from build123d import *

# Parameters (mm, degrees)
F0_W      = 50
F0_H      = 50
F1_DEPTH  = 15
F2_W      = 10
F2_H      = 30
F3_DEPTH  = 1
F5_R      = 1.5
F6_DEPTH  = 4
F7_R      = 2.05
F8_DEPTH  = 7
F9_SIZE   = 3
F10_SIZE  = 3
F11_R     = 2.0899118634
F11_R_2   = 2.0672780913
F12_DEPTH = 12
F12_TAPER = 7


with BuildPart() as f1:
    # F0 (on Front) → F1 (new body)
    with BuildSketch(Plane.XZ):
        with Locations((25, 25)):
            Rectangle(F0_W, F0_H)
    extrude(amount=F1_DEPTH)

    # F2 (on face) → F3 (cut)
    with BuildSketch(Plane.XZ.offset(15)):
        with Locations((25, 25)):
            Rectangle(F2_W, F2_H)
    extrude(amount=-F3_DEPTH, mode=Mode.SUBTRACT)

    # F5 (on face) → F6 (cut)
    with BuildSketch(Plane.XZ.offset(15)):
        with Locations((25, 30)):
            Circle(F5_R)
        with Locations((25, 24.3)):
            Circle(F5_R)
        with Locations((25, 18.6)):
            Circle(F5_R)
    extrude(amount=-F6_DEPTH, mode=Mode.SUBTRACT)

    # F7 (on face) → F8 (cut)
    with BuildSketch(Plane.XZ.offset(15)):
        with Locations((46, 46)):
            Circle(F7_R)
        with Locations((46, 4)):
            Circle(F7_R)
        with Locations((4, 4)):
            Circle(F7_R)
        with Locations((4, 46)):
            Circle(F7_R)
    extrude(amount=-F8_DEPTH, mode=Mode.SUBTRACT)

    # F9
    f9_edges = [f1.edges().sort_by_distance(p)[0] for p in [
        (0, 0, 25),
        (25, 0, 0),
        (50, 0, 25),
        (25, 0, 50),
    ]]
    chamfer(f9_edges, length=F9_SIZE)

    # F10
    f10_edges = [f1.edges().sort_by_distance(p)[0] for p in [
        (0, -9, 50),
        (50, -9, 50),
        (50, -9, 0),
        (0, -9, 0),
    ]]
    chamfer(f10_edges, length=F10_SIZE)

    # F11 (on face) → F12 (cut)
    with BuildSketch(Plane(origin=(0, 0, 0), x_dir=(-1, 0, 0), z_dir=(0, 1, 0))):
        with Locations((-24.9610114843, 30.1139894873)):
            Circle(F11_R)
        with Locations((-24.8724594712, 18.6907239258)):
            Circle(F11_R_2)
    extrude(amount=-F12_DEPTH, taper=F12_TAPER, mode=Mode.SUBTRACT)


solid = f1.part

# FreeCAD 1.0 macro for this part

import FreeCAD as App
import Part
import Sketcher

V = App.Vector


def edges_at(feature, points):
    """Names of the edges that pass closest to the given points."""
    edges = feature.Shape.Edges
    near = lambda p: min(range(len(edges)), key=lambda i: edges[i].distToShape(Part.Vertex(*p))[0])
    return sorted({f"Edge{near(p) + 1}" for p in points})


def add_polygon(sketch, points):
    """Adds a closed chain of lines whose ends are joined by coincident constraints."""
    first, n = sketch.GeometryCount, len(points)
    for a, b in zip(points, points[1:] + points[:1]):
        sketch.addGeometry(Part.LineSegment(App.Vector(*a, 0), App.Vector(*b, 0)), False)
    for i in range(n):
        sketch.addConstraint(Sketcher.Constraint("Coincident", first + i, 2, first + (i + 1) % n, 1))

doc = App.newDocument("Part")
body = doc.addObject("PartDesign::Body", "Body")

# Sketch on XZ plane
sketch1 = body.newObject("Sketcher::SketchObject", "Sketch")
sketch1.AttachmentSupport = (doc.getObject("XZ_Plane"), [""])
sketch1.MapMode = "FlatFace"
add_polygon(sketch1, [(0, 50), (0, 0), (50, 0), (50, 50)])  # lines 0-3
sketch1.addConstraint(Sketcher.Constraint("Vertical", 0))
sketch1.addConstraint(Sketcher.Constraint("Horizontal", 1))
sketch1.addConstraint(Sketcher.Constraint("Vertical", 2))
sketch1.addConstraint(Sketcher.Constraint("Horizontal", 3))
sketch1.addConstraint(Sketcher.Constraint("Coincident", 0, 2, -1, 1))
sketch1.addConstraint(Sketcher.Constraint("Equal", 3, 0))
sketch1.addConstraint(Sketcher.Constraint("DistanceX", 1, 1, 1, 2, 50.0))
pad1 = body.newObject("PartDesign::Pad", "Pad")
pad1.Profile = sketch1
pad1.Length = 15

# Sketch on XZ plane
sketch2 = body.newObject("Sketcher::SketchObject", "Sketch001")
sketch2.AttachmentSupport = (doc.getObject("XZ_Plane"), [""])
sketch2.MapMode = "FlatFace"
sketch2.AttachmentOffset = App.Placement(V(0, 0, 15), App.Rotation())
add_polygon(sketch2, [(20, 40), (20, 10), (30, 10), (30, 40)])  # lines 0-3
sketch2.addConstraint(Sketcher.Constraint("Vertical", 0))
sketch2.addConstraint(Sketcher.Constraint("Horizontal", 1))
sketch2.addConstraint(Sketcher.Constraint("Vertical", 2))
sketch2.addConstraint(Sketcher.Constraint("Horizontal", 3))
sketch2.addConstraint(Sketcher.Constraint("DistanceX", 1, 1, 1, 2, 10.0))
sketch2.addConstraint(Sketcher.Constraint("DistanceY", 0, 2, 0, 1, 30.0))
sketch2.addConstraint(Sketcher.Constraint("DistanceX", -1, 1, 0, 2, 20.0))
sketch2.addConstraint(Sketcher.Constraint("DistanceY", -1, 1, 0, 2, 10.0))
pocket1 = body.newObject("PartDesign::Pocket", "Pocket")
pocket1.Profile = sketch2
pocket1.Length = 1

# Sketch on XZ plane
sketch3 = body.newObject("Sketcher::SketchObject", "Sketch002")
sketch3.AttachmentSupport = (doc.getObject("XZ_Plane"), [""])
sketch3.MapMode = "FlatFace"
sketch3.AttachmentOffset = App.Placement(V(0, 0, 15), App.Rotation())
sketch3.addGeometry(Part.Circle(V(25, 30, 0), V(0, 0, 1), 1.5), False)
sketch3.addGeometry(Part.Circle(V(25, 24.3, 0), V(0, 0, 1), 1.5), False)
sketch3.addGeometry(Part.Circle(V(25, 18.6, 0), V(0, 0, 1), 1.5), False)
sketch3.addConstraint(Sketcher.Constraint("Equal", 0, 1))
sketch3.addConstraint(Sketcher.Constraint("Equal", 1, 2))
sketch3.addConstraint(Sketcher.Constraint("Vertical", 0, 3, 1, 3))
sketch3.addConstraint(Sketcher.Constraint("Vertical", 1, 3, 2, 3))
sketch3.addConstraint(Sketcher.Constraint("Diameter", 0, 3.0))
sketch3.addConstraint(Sketcher.Constraint("DistanceX", -1, 1, 0, 3, 25.0))
sketch3.addConstraint(Sketcher.Constraint("DistanceY", -1, 1, 0, 3, 30.0))
sketch3.addConstraint(Sketcher.Constraint("DistanceY", -1, 1, 1, 3, 24.3))
sketch3.addConstraint(Sketcher.Constraint("DistanceY", -1, 1, 2, 3, 18.6))
pocket2 = body.newObject("PartDesign::Pocket", "Pocket001")
pocket2.Profile = sketch3
pocket2.Length = 4

# Sketch on XZ plane
sketch4 = body.newObject("Sketcher::SketchObject", "Sketch003")
sketch4.AttachmentSupport = (doc.getObject("XZ_Plane"), [""])
sketch4.MapMode = "FlatFace"
sketch4.AttachmentOffset = App.Placement(V(0, 0, 15), App.Rotation())
sketch4.addGeometry(Part.Circle(V(46, 46, 0), V(0, 0, 1), 2), False)
sketch4.addGeometry(Part.Circle(V(46, 4, 0), V(0, 0, 1), 2), False)
sketch4.addGeometry(Part.Circle(V(4, 4, 0), V(0, 0, 1), 2), False)
sketch4.addGeometry(Part.Circle(V(4, 46, 0), V(0, 0, 1), 2), False)
sketch4.addConstraint(Sketcher.Constraint("Equal", 0, 1))
sketch4.addConstraint(Sketcher.Constraint("Equal", 1, 2))
sketch4.addConstraint(Sketcher.Constraint("Equal", 2, 3))
sketch4.addConstraint(Sketcher.Constraint("Horizontal", 1, 3, 2, 3))
sketch4.addConstraint(Sketcher.Constraint("Horizontal", 0, 3, 3, 3))
sketch4.addConstraint(Sketcher.Constraint("Vertical", 0, 3, 1, 3))
sketch4.addConstraint(Sketcher.Constraint("Vertical", 2, 3, 3, 3))
sketch4.addConstraint(Sketcher.Constraint("Diameter", 0, 4.1))
sketch4.addConstraint(Sketcher.Constraint("DistanceX", -1, 1, 0, 3, 46.0))
sketch4.addConstraint(Sketcher.Constraint("DistanceY", -1, 1, 0, 3, 46.0))
sketch4.addConstraint(Sketcher.Constraint("DistanceY", -1, 1, 1, 3, 4.0))
sketch4.addConstraint(Sketcher.Constraint("DistanceX", -1, 1, 2, 3, 4.0))
pocket3 = body.newObject("PartDesign::Pocket", "Pocket002")
pocket3.Profile = sketch4
pocket3.Length = 7
doc.recompute()

chamfer = body.newObject("PartDesign::Chamfer", "Chamfer")
chamfer.Base = (pocket3, edges_at(pocket3, [
    (0, 0, 25),
    (25, 0, 0),
    (50, 0, 25),
    (25, 0, 50),
]))
chamfer.Size = 3
doc.recompute()

chamfer2 = body.newObject("PartDesign::Chamfer", "Chamfer001")
chamfer2.Base = (chamfer, edges_at(chamfer, [
    (0, -9, 50),
    (50, -9, 50),
    (50, -9, 0),
    (0, -9, 0),
]))
chamfer2.Size = 3

# Sketch on XZ plane
sketch5 = body.newObject("Sketcher::SketchObject", "Sketch004")
sketch5.AttachmentSupport = (doc.getObject("XZ_Plane"), [""])
sketch5.MapMode = "FlatFace"
sketch5.addGeometry(Part.Circle(V(25, 30.1, 0), V(0, 0, 1), 2.1), False)
sketch5.addGeometry(Part.Circle(V(24.9, 18.7, 0), V(0, 0, 1), 2.1), False)
sketch5.addConstraint(Sketcher.Constraint("Diameter", 0, 4.179824))
sketch5.addConstraint(Sketcher.Constraint("Diameter", 1, 4.134556))
sketch5.addConstraint(Sketcher.Constraint("DistanceX", -1, 1, 0, 3, 24.961011))
sketch5.addConstraint(Sketcher.Constraint("DistanceY", -1, 1, 0, 3, 30.113989))
sketch5.addConstraint(Sketcher.Constraint("DistanceX", -1, 1, 1, 3, 24.872459))
sketch5.addConstraint(Sketcher.Constraint("DistanceY", -1, 1, 1, 3, 18.690724))
pocket4 = body.newObject("PartDesign::Pocket", "Pocket003")
pocket4.Profile = sketch5
pocket4.Length = 12
pocket4.Reversed = True
pocket4.TaperAngle = -7

doc.recompute()
